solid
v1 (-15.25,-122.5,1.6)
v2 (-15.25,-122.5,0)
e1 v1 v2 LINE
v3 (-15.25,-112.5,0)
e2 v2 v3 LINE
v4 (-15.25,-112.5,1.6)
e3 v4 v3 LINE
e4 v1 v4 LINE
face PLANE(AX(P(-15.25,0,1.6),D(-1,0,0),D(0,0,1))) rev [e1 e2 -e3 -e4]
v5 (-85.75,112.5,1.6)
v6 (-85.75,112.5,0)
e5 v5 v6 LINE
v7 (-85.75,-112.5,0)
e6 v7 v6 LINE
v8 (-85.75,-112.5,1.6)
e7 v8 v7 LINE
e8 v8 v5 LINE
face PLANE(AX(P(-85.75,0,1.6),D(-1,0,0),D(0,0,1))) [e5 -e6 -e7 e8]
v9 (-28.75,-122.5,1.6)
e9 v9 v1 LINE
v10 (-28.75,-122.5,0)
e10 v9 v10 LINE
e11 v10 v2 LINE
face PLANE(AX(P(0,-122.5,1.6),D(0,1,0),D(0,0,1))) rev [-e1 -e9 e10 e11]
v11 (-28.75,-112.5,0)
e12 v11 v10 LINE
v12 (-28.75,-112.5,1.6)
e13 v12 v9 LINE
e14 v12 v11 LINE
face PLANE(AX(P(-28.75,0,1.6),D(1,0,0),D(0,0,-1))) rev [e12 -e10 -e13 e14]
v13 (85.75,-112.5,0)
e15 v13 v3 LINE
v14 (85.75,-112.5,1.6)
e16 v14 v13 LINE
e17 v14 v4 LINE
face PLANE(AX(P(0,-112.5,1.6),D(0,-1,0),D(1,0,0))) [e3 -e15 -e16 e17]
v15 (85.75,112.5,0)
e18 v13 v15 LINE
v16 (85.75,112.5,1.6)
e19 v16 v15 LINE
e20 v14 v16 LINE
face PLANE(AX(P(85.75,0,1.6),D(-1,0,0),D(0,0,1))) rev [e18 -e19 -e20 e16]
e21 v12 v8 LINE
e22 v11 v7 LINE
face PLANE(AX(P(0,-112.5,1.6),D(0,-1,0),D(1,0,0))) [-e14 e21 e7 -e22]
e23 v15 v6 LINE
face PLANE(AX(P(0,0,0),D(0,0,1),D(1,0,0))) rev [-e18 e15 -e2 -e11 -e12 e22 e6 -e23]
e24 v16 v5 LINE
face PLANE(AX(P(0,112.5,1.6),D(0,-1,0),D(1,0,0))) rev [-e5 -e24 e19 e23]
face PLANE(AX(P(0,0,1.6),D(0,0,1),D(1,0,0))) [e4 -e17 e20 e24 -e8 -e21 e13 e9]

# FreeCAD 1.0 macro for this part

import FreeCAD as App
import Part
import Sketcher

V = App.Vector
Q = App.Units.Quantity

doc = App.newDocument("Part")
body = doc.addObject("PartDesign::Body", "Body")

sketch1 = doc.addObject("Sketcher::SketchObject", "Sketch")
body.addObject(sketch1)
sketch1.AttachmentSupport = (doc.XY_Plane, [""])
sketch1.MapMode = "FlatFace"
sketch1.addGeometry([
    Part.LineSegment(V(-86, 112, 0), V(-86, -112, 0)),
    Part.LineSegment(V(-86, -112, 0), V(-29, -112, 0)),
    Part.LineSegment(V(-29, -112, 0), V(-29, -122, 0)),
    Part.LineSegment(V(-29, -122, 0), V(-15, -122, 0)),
    Part.LineSegment(V(-15, -122, 0), V(-15, -112, 0)),
    Part.LineSegment(V(-15, -112, 0), V(86, -112, 0)),
    Part.LineSegment(V(86, -112, 0), V(86, 112, 0)),
    Part.LineSegment(V(86, 112, 0), V(-86, 112, 0)),
], False)
sketch1.addConstraint([
    Sketcher.Constraint("Coincident", 0, 2, 1, 1),
    Sketcher.Constraint("Coincident", 1, 2, 2, 1),
    Sketcher.Constraint("Coincident", 2, 2, 3, 1),
    Sketcher.Constraint("Coincident", 3, 2, 4, 1),
    Sketcher.Constraint("Coincident", 4, 2, 5, 1),
    Sketcher.Constraint("Coincident", 5, 2, 6, 1),
    Sketcher.Constraint("Coincident", 6, 2, 7, 1),
    Sketcher.Constraint("Coincident", 7, 2, 0, 1),
    Sketcher.Constraint("Vertical", 0),
    Sketcher.Constraint("Horizontal", 1),
    Sketcher.Constraint("Vertical", 2),
    Sketcher.Constraint("Horizontal", 3),
    Sketcher.Constraint("Vertical", 4),
    Sketcher.Constraint("Horizontal", 5),
    Sketcher.Constraint("Vertical", 6),
    Sketcher.Constraint("Horizontal", 7),
    Sketcher.Constraint("Symmetric", 0, 2, 6, 2, -1, 1),
    Sketcher.Constraint("Horizontal", 1, 2, 4, 2),
    Sketcher.Constraint("DistanceX", 1, 1, 1, 2, Q("57 mm")),
    Sketcher.Constraint("DistanceX", 5, 1, 5, 2, Q("101 mm")),
    Sketcher.Constraint("DistanceY", 0, 2, 0, 1, Q("225 mm")),
    Sketcher.Constraint("DistanceY", 2, 2, 2, 1, Q("10 mm")),
    Sketcher.Constraint("DistanceX", 3, 1, 3, 2, Q("13.5 mm")),
])
pad1 = doc.addObject("PartDesign::Pad", "Pad")
body.addObject(pad1)
pad1.Profile = sketch1
pad1.Length = 1.6

doc.recompute()
